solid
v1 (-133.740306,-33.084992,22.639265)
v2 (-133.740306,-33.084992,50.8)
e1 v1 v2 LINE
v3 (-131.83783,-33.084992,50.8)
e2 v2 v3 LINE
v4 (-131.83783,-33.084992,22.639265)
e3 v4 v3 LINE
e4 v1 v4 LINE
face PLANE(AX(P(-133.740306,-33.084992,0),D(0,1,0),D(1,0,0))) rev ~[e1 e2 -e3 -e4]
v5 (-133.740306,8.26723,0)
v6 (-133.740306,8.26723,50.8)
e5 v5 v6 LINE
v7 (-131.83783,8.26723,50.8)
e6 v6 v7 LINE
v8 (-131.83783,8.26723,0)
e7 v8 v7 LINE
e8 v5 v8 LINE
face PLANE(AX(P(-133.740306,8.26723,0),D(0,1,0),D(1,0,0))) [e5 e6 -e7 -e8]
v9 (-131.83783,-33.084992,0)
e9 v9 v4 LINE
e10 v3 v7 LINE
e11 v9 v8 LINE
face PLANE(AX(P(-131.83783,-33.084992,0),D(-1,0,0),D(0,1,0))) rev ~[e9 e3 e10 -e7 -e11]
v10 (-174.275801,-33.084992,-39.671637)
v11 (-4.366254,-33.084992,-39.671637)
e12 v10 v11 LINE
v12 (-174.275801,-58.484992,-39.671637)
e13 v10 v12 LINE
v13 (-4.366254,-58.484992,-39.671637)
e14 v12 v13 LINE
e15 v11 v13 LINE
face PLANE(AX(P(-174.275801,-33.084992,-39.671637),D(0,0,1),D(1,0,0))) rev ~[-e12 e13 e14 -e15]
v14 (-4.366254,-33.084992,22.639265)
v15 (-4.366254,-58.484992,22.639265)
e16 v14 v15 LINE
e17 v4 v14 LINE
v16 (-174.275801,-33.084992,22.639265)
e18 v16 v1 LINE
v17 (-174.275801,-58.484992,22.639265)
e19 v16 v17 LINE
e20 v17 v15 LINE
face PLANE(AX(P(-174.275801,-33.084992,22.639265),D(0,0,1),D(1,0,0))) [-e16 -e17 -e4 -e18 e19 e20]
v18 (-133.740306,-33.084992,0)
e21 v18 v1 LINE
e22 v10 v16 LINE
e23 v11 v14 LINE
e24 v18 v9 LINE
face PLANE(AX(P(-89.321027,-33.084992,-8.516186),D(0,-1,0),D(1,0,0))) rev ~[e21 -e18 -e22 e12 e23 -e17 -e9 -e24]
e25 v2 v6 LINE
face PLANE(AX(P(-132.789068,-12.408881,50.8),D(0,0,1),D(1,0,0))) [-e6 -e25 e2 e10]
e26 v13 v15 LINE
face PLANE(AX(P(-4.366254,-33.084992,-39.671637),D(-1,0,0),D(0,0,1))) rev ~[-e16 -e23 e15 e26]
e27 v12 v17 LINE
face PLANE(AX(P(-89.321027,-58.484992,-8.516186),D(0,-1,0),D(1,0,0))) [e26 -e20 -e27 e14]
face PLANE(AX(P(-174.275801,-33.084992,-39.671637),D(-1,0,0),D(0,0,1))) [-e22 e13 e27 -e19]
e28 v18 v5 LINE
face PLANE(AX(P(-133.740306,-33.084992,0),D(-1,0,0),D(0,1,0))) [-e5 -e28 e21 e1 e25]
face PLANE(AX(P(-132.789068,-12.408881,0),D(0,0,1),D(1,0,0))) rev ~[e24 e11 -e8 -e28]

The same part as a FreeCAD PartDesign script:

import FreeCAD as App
import Part
import Sketcher
from FreeCAD import Vector
Q = App.Units.Quantity


def faces_at(feature, points):
    """Names of the faces that lie closest to the given points."""
    faces = feature.Shape.Faces
    near = lambda p: min(range(len(faces)), key=lambda i: faces[i].distToShape(Part.Vertex(*p))[0])
    return sorted({f"Face{near(p) + 1}" for p in points})

doc = App.newDocument("Part")
body = doc.addObject("PartDesign::Body", "Body")

# Sketch on XY plane
sketch1 = body.newObject("Sketcher::SketchObject", "Sketch")
sketch1.AttachmentSupport = (doc.getObject("XY_Plane"), [""])
sketch1.MapMode = "FlatFace"
sketch1.addGeometry([
    Part.LineSegment(Vector(-133.7, 8.3, 0), Vector(-133.7, -33.1, 0)),
    Part.LineSegment(Vector(-133.7, -33.1, 0), Vector(-131.8, -33.1, 0)),
    Part.LineSegment(Vector(-131.8, -33.1, 0), Vector(-131.8, 8.3, 0)),
    Part.LineSegment(Vector(-131.8, 8.3, 0), Vector(-133.7, 8.3, 0)),
], False)
sketch1.addConstraint([
    Sketcher.Constraint("Coincident", 0, 2, 1, 1),
    Sketcher.Constraint("Coincident", 1, 2, 2, 1),
    Sketcher.Constraint("Coincident", 2, 2, 3, 1),
    Sketcher.Constraint("Coincident", 3, 2, 0, 1),
    Sketcher.Constraint("Vertical", 0),
    Sketcher.Constraint("Horizontal", 1),
    Sketcher.Constraint("Vertical", 2),
    Sketcher.Constraint("Horizontal", 3),
    Sketcher.Constraint("DistanceY", 0, 2, 0, 1, 41.352222),
    Sketcher.Constraint("DistanceX", 1, 1, 1, 2, 1.902476),
    Sketcher.Constraint("DistanceX", 1, 2, -1, 1, 131.83783),
    Sketcher.Constraint("DistanceY", -1, 1, 2, 2, 8.26723),
])
pad1 = body.newObject("PartDesign::Pad", "Pad")
pad1.Profile = sketch1
pad1.Length = Q("2 in")
doc.recompute()

thickness = body.newObject("PartDesign::Thickness", "Thickness")
thickness.Base = (pad1, faces_at(pad1, [(-131.838, -12.409, 25.4)]))
thickness.Value = Q("4 in")
thickness.Reversed = True
thickness.Join = "Arc"

# Sketch on XZ plane
sketch2 = body.newObject("Sketcher::SketchObject", "Sketch001")
sketch2.AttachmentSupport = (doc.getObject("XZ_Plane"), [""])
sketch2.MapMode = "FlatFace"
sketch2.AttachmentOffset = App.Placement(Vector(0, 0, 33.084992), App.Rotation())
sketch2.addGeometry([
    Part.LineSegment(Vector(-174, 23, 0), Vector(-174, -40, 0)),
    Part.LineSegment(Vector(-174, -40, 0), Vector(-4, -40, 0)),
    Part.LineSegment(Vector(-4, -40, 0), Vector(-4, 23, 0)),
    Part.LineSegment(Vector(-4, 23, 0), Vector(-174, 23, 0)),
], False)
sketch2.addConstraint([
    Sketcher.Constraint("Coincident", 0, 2, 1, 1),
    Sketcher.Constraint("Coincident", 1, 2, 2, 1),
    Sketcher.Constraint("Coincident", 2, 2, 3, 1),
    Sketcher.Constraint("Coincident", 3, 2, 0, 1),
    Sketcher.Constraint("Vertical", 0),
    Sketcher.Constraint("Horizontal", 1),
    Sketcher.Constraint("Vertical", 2),
    Sketcher.Constraint("Horizontal", 3),
    Sketcher.Constraint("DistanceX", 0, 2, -1, 1, 174.275801),
    Sketcher.Constraint("DistanceX", 1, 1, 1, 2, 169.909547),
    Sketcher.Constraint("DistanceY", 0, 2, 0, 1, 62.310902),
    Sketcher.Constraint("DistanceY", 0, 2, -1, 1, 39.671637),
])
pad2 = body.newObject("PartDesign::Pad", "Pad001")
pad2.Profile = sketch2
pad2.Length = Q("1 in")

doc.recompute()
